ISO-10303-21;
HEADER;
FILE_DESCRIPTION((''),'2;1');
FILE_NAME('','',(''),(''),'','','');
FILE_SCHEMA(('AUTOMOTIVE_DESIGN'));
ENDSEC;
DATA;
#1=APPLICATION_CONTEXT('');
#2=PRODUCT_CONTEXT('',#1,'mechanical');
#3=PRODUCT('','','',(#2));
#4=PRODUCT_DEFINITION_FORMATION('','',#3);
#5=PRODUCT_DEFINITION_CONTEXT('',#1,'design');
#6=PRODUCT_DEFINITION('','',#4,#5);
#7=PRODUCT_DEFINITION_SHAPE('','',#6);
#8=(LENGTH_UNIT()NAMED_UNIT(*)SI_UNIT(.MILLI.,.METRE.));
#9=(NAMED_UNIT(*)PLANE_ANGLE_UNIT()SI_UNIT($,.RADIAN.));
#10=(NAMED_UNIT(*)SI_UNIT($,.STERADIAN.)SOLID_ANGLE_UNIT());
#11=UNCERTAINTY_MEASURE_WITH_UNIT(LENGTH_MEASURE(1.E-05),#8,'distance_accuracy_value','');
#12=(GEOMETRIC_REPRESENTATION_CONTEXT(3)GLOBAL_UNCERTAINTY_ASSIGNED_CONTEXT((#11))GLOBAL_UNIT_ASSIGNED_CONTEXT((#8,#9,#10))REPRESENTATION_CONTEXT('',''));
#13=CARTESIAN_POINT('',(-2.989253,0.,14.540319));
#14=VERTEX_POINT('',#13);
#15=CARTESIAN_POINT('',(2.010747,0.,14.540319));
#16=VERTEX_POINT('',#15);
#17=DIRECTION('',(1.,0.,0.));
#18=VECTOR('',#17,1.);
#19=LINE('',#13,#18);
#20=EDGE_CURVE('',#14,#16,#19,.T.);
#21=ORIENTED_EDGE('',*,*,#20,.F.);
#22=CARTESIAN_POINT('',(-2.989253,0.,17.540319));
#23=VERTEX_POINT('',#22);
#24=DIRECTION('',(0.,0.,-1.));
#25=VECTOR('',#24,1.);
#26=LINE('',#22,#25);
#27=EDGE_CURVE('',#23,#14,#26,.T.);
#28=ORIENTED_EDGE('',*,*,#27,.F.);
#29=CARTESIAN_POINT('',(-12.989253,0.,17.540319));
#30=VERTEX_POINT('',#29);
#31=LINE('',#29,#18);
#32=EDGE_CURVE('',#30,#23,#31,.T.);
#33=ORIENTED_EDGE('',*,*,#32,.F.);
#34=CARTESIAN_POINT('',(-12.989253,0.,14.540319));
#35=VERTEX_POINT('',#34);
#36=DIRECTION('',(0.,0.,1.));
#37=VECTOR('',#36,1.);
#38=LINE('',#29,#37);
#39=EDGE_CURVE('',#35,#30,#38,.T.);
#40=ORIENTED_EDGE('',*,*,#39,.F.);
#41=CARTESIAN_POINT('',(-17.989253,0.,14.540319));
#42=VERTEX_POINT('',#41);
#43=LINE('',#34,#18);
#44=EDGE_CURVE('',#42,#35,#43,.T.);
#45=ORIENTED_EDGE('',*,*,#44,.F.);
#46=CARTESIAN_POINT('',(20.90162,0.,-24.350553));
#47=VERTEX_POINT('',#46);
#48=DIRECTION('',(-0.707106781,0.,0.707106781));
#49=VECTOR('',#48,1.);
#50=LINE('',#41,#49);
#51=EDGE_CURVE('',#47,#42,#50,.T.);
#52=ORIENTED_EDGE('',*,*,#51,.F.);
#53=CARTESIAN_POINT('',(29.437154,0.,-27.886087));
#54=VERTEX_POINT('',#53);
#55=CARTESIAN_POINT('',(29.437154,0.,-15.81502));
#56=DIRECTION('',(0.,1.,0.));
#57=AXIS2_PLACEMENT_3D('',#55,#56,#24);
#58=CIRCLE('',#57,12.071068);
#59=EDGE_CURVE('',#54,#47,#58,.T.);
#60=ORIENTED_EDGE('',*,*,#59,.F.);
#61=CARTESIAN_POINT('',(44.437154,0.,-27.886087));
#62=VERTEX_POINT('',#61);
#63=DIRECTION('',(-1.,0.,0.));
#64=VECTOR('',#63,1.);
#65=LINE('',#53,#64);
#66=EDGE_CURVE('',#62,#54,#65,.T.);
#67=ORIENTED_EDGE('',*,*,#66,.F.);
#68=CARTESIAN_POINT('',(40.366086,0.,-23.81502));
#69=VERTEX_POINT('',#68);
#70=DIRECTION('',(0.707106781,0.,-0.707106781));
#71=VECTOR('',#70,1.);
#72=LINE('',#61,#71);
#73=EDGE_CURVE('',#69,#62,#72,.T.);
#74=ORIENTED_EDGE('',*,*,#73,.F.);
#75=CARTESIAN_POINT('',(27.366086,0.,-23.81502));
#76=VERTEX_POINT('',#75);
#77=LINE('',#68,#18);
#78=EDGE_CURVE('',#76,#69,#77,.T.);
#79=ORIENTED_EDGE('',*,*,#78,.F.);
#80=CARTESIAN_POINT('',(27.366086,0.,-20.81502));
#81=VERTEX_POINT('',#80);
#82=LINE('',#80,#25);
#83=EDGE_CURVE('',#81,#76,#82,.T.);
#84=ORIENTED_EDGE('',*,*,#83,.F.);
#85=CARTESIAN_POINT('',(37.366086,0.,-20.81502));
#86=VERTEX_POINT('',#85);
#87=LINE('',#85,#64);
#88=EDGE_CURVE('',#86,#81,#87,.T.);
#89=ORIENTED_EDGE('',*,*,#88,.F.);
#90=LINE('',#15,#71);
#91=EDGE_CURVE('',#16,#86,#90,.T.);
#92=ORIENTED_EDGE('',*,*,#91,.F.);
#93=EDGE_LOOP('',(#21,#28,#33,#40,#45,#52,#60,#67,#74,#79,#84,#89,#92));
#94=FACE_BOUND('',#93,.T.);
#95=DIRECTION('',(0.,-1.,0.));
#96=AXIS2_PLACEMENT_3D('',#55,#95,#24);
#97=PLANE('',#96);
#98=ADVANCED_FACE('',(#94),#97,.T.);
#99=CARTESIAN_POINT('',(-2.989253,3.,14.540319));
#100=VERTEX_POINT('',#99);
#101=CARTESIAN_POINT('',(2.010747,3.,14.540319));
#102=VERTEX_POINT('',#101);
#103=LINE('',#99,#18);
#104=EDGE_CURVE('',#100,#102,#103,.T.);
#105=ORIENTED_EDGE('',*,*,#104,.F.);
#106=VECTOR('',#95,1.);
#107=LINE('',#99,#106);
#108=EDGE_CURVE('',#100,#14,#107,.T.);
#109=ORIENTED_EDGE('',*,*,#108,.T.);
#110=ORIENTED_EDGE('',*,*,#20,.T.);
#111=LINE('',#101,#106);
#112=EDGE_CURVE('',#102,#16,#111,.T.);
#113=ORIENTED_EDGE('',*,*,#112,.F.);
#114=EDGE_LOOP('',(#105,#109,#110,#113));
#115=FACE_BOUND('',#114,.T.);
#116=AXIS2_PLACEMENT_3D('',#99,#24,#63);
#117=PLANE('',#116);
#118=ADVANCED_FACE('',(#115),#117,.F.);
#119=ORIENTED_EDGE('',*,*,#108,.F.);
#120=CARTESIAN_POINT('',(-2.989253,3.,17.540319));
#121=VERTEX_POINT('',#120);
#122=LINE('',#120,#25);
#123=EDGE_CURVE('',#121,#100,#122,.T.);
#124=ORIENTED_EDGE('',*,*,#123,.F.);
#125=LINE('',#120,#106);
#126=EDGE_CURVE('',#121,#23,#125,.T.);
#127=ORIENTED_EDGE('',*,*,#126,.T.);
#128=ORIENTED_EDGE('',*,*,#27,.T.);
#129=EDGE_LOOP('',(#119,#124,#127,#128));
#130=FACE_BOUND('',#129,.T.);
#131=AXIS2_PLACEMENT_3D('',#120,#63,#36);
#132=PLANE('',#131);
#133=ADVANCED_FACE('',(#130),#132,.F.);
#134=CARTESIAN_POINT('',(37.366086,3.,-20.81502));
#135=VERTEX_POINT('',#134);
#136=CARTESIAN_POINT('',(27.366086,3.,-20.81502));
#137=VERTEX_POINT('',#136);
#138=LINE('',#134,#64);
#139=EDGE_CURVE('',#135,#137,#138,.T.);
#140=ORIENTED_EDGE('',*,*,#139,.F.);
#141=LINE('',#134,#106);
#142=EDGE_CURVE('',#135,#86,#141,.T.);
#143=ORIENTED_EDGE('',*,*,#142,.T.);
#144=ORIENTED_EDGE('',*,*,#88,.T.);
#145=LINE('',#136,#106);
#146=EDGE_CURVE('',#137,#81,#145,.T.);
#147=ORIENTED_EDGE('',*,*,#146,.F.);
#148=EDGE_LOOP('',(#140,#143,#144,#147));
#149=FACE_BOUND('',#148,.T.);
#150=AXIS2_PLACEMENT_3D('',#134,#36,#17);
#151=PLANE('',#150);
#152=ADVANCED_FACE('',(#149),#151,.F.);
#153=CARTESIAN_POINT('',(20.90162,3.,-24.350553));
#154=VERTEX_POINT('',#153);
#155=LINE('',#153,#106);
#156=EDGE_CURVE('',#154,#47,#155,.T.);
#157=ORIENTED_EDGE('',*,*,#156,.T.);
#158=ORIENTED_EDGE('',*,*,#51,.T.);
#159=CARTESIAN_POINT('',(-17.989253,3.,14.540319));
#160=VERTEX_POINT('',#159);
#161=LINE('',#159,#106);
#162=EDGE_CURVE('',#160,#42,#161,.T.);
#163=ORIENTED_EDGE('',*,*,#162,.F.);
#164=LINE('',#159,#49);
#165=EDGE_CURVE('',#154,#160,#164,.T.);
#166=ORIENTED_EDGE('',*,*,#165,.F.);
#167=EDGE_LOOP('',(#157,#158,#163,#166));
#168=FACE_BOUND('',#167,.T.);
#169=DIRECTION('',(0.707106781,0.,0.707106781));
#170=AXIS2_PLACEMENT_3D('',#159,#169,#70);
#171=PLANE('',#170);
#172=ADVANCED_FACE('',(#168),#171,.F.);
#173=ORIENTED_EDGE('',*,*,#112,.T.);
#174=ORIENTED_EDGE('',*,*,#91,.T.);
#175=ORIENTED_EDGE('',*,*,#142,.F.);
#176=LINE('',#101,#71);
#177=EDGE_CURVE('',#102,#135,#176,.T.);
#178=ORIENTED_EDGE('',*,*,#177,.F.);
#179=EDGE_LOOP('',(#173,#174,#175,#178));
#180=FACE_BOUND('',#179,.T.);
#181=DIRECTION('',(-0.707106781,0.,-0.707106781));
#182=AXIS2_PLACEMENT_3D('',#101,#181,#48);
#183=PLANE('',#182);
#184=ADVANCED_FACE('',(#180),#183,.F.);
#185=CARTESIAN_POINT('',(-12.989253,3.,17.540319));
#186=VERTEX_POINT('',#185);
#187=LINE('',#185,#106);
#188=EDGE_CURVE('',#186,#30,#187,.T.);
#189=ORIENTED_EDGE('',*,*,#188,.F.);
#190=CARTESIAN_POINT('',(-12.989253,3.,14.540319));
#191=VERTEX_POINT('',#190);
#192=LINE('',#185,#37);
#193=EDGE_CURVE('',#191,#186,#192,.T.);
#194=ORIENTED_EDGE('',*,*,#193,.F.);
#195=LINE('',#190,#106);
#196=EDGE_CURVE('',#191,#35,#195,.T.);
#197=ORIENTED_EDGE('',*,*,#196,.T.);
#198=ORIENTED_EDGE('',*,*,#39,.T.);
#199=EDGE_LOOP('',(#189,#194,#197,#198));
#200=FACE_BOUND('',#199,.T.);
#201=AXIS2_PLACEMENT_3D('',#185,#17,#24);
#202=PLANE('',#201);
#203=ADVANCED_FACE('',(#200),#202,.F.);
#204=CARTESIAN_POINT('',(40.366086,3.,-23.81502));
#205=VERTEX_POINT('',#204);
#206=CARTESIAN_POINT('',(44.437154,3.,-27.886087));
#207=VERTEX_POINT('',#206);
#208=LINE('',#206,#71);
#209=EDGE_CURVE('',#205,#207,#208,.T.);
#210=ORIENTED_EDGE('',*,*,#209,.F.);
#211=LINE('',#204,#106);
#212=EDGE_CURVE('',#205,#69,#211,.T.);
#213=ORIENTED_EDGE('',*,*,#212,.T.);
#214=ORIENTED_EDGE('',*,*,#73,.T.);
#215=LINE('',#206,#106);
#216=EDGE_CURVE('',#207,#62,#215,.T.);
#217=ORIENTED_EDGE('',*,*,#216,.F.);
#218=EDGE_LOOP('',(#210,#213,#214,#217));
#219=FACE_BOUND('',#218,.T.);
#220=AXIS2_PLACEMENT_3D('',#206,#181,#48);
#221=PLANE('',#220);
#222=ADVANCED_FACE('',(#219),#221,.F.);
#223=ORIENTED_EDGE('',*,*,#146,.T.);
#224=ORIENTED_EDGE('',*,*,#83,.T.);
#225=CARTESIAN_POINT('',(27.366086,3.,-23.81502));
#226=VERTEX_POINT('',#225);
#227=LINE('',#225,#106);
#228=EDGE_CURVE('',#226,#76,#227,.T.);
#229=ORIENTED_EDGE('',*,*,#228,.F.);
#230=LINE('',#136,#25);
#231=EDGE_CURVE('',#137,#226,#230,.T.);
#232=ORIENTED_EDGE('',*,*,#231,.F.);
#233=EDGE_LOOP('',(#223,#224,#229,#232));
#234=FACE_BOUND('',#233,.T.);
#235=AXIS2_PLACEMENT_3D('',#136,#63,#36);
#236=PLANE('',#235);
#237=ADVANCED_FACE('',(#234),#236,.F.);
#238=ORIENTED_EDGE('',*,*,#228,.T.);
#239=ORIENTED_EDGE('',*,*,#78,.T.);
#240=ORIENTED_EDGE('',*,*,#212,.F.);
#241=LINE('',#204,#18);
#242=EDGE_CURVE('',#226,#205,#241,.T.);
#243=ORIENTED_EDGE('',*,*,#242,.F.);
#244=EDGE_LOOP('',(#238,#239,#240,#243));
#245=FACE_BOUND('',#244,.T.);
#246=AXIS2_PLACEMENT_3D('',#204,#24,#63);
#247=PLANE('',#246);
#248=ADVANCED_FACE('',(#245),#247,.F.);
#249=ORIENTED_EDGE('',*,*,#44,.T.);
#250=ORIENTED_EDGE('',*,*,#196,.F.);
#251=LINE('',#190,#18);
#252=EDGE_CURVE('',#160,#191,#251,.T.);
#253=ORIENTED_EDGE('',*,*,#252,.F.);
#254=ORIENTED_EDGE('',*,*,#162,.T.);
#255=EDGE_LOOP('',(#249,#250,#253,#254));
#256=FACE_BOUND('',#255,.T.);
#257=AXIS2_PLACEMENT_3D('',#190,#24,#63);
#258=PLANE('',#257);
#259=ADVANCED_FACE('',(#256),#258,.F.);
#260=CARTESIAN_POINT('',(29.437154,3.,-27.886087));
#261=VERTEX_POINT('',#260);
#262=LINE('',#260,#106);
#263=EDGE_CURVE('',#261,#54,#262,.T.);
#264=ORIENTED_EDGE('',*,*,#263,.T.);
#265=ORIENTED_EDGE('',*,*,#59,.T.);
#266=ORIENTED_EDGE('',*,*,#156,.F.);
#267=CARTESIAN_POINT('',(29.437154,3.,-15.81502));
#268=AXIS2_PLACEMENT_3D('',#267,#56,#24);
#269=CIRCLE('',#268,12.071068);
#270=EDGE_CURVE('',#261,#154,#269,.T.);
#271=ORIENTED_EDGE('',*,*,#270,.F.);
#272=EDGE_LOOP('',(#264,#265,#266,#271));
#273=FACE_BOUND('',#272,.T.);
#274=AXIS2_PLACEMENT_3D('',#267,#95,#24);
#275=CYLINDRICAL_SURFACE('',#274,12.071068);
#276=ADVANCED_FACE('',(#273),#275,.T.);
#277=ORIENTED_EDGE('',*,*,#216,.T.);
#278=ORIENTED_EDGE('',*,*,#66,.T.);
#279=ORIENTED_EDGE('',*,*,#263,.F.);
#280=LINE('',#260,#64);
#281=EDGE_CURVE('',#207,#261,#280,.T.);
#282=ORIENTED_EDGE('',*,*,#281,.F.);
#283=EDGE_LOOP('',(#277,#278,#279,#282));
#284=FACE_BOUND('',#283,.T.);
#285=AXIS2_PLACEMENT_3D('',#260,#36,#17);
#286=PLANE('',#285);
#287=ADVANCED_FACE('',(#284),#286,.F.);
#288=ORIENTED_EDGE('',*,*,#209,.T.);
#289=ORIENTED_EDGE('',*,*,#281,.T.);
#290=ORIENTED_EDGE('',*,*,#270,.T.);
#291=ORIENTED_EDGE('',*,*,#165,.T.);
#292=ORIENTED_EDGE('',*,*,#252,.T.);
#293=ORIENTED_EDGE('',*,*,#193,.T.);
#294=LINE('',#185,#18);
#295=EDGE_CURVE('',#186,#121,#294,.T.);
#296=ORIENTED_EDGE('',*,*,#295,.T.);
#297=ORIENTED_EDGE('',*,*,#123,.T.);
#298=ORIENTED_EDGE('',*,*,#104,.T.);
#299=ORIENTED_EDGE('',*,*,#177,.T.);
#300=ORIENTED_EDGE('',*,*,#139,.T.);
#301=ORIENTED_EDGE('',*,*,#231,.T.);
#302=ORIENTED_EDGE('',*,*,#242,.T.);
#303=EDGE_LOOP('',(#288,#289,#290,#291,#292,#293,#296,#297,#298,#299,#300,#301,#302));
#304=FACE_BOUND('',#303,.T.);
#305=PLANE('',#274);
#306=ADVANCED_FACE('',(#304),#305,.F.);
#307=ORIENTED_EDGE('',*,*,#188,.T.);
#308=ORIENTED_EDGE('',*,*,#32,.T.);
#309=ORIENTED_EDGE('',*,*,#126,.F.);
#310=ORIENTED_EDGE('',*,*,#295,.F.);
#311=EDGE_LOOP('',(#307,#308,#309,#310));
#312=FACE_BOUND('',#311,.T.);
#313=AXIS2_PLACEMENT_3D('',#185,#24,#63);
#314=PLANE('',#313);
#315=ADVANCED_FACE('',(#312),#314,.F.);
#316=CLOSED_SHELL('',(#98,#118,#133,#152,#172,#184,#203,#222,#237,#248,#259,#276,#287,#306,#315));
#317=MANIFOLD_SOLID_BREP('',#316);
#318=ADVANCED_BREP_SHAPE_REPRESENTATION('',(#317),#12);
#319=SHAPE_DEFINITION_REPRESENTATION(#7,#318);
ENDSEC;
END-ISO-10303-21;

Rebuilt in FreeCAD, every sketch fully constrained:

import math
import FreeCAD as App
import Part
import Sketcher
from FreeCAD import Vector
Q = App.Units.Quantity

doc = App.newDocument("Part")
body = doc.addObject("PartDesign::Body", "Body")

# Sketch on XZ plane
sketch1 = doc.addObject("Sketcher::SketchObject", "Sketch")
body.addObject(sketch1)
sketch1.AttachmentSupport = (doc.XZ_Plane, [""])
sketch1.MapMode = "FlatFace"
sketch1.addGeometry(Part.LineSegment(Vector(-13, 17.5, 0), Vector(-3, 17.5, 0)), False)
sketch1.addGeometry(Part.LineSegment(Vector(-3, 17.5, 0), Vector(-3, 14.5, 0)), False)
sketch1.addGeometry(Part.LineSegment(Vector(-3, 14.5, 0), Vector(2, 14.5, 0)), False)
sketch1.addGeometry(Part.LineSegment(Vector(2, 14.5, 0), Vector(37.4, -20.8, 0)), False)
sketch1.addGeometry(Part.LineSegment(Vector(37.4, -20.8, 0), Vector(27.4, -20.8, 0)), False)
sketch1.addGeometry(Part.LineSegment(Vector(27.4, -20.8, 0), Vector(27.4, -23.8, 0)), False)
sketch1.addGeometry(Part.LineSegment(Vector(27.4, -23.8, 0), Vector(40.4, -23.8, 0)), False)
sketch1.addGeometry(Part.LineSegment(Vector(40.4, -23.8, 0), Vector(44.4, -27.9, 0)), False)
sketch1.addGeometry(Part.LineSegment(Vector(44.4, -27.9, 0), Vector(29.4, -27.9, 0)), False)
sketch1.addGeometry(Part.ArcOfCircle(Part.Circle(Vector(29.4, -15.8, 0), Vector(0, 0, 1), 12.1), math.radians(-135), math.radians(-90)), False)
sketch1.addGeometry(Part.LineSegment(Vector(20.9, -24.4, 0), Vector(-18, 14.5, 0)), False)
sketch1.addGeometry(Part.LineSegment(Vector(-18, 14.5, 0), Vector(-13, 14.5, 0)), False)
sketch1.addGeometry(Part.LineSegment(Vector(-13, 14.5, 0), Vector(-13, 17.5, 0)), False)
sketch1.addConstraint(Sketcher.Constraint("Coincident", 0, 2, 1, 1))
sketch1.addConstraint(Sketcher.Constraint("Coincident", 1, 2, 2, 1))
sketch1.addConstraint(Sketcher.Constraint("Coincident", 2, 2, 3, 1))
sketch1.addConstraint(Sketcher.Constraint("Coincident", 3, 2, 4, 1))
sketch1.addConstraint(Sketcher.Constraint("Coincident", 4, 2, 5, 1))
sketch1.addConstraint(Sketcher.Constraint("Coincident", 5, 2, 6, 1))
sketch1.addConstraint(Sketcher.Constraint("Coincident", 6, 2, 7, 1))
sketch1.addConstraint(Sketcher.Constraint("Coincident", 7, 2, 8, 1))
sketch1.addConstraint(Sketcher.Constraint("Tangent", 8, 2, 9, 2))
sketch1.addConstraint(Sketcher.Constraint("Tangent", 9, 1, 10, 1))
sketch1.addConstraint(Sketcher.Constraint("Coincident", 10, 2, 11, 1))
sketch1.addConstraint(Sketcher.Constraint("Coincident", 11, 2, 12, 1))
sketch1.addConstraint(Sketcher.Constraint("Coincident", 12, 2, 0, 1))
sketch1.addConstraint(Sketcher.Constraint("Horizontal", 0))
sketch1.addConstraint(Sketcher.Constraint("Vertical", 1))
sketch1.addConstraint(Sketcher.Constraint("Horizontal", 2))
sketch1.addConstraint(Sketcher.Constraint("Horizontal", 4))
sketch1.addConstraint(Sketcher.Constraint("Vertical", 5))
sketch1.addConstraint(Sketcher.Constraint("Horizontal", 6))
sketch1.addConstraint(Sketcher.Constraint("Horizontal", 8))
sketch1.addConstraint(Sketcher.Constraint("Horizontal", 11))
sketch1.addConstraint(Sketcher.Constraint("Vertical", 12))
sketch1.addConstraint(Sketcher.Constraint("Parallel", 3, 7))
sketch1.addConstraint(Sketcher.Constraint("Parallel", 7, 10))
sketch1.addConstraint(Sketcher.Constraint("Horizontal", 2, 2, 10, 2))
sketch1.addConstraint(Sketcher.Constraint("Equal", 0, 4))
sketch1.addConstraint(Sketcher.Constraint("Equal", 2, 11))
sketch1.addConstraint(Sketcher.Constraint("Equal", 1, 5))
sketch1.addConstraint(Sketcher.Constraint("DistanceX", 0, 1, 0, 2, 10.0))
sketch1.addConstraint(Sketcher.Constraint("DistanceX", 2, 1, 2, 2, 5.0))
sketch1.addConstraint(Sketcher.Constraint("DistanceX", 6, 1, 6, 2, 13.0))
sketch1.addConstraint(Sketcher.Constraint("DistanceX", 8, 2, 8, 1, 15.0))
sketch1.addConstraint(Sketcher.Constraint("DistanceY", 1, 2, 1, 1, 3.0))
sketch1.addConstraint(Sketcher.Constraint("Angle", 3, Q("-45 deg")))
sketch1.addConstraint(Sketcher.Constraint("Distance", 3, 50.0))
sketch1.addConstraint(Sketcher.Constraint("Distance", 10, 55.0))
sketch1.addConstraint(Sketcher.Constraint("DistanceY", 9, 3, -1, 1, 15.81502))
sketch1.addConstraint(Sketcher.Constraint("DistanceX", -1, 1, 9, 1, 20.90162))
pad1 = doc.addObject("PartDesign::Pad", "Pad")
body.addObject(pad1)
pad1.Profile = sketch1
pad1.Length = 3
pad1.Reversed = True

doc.recompute()
